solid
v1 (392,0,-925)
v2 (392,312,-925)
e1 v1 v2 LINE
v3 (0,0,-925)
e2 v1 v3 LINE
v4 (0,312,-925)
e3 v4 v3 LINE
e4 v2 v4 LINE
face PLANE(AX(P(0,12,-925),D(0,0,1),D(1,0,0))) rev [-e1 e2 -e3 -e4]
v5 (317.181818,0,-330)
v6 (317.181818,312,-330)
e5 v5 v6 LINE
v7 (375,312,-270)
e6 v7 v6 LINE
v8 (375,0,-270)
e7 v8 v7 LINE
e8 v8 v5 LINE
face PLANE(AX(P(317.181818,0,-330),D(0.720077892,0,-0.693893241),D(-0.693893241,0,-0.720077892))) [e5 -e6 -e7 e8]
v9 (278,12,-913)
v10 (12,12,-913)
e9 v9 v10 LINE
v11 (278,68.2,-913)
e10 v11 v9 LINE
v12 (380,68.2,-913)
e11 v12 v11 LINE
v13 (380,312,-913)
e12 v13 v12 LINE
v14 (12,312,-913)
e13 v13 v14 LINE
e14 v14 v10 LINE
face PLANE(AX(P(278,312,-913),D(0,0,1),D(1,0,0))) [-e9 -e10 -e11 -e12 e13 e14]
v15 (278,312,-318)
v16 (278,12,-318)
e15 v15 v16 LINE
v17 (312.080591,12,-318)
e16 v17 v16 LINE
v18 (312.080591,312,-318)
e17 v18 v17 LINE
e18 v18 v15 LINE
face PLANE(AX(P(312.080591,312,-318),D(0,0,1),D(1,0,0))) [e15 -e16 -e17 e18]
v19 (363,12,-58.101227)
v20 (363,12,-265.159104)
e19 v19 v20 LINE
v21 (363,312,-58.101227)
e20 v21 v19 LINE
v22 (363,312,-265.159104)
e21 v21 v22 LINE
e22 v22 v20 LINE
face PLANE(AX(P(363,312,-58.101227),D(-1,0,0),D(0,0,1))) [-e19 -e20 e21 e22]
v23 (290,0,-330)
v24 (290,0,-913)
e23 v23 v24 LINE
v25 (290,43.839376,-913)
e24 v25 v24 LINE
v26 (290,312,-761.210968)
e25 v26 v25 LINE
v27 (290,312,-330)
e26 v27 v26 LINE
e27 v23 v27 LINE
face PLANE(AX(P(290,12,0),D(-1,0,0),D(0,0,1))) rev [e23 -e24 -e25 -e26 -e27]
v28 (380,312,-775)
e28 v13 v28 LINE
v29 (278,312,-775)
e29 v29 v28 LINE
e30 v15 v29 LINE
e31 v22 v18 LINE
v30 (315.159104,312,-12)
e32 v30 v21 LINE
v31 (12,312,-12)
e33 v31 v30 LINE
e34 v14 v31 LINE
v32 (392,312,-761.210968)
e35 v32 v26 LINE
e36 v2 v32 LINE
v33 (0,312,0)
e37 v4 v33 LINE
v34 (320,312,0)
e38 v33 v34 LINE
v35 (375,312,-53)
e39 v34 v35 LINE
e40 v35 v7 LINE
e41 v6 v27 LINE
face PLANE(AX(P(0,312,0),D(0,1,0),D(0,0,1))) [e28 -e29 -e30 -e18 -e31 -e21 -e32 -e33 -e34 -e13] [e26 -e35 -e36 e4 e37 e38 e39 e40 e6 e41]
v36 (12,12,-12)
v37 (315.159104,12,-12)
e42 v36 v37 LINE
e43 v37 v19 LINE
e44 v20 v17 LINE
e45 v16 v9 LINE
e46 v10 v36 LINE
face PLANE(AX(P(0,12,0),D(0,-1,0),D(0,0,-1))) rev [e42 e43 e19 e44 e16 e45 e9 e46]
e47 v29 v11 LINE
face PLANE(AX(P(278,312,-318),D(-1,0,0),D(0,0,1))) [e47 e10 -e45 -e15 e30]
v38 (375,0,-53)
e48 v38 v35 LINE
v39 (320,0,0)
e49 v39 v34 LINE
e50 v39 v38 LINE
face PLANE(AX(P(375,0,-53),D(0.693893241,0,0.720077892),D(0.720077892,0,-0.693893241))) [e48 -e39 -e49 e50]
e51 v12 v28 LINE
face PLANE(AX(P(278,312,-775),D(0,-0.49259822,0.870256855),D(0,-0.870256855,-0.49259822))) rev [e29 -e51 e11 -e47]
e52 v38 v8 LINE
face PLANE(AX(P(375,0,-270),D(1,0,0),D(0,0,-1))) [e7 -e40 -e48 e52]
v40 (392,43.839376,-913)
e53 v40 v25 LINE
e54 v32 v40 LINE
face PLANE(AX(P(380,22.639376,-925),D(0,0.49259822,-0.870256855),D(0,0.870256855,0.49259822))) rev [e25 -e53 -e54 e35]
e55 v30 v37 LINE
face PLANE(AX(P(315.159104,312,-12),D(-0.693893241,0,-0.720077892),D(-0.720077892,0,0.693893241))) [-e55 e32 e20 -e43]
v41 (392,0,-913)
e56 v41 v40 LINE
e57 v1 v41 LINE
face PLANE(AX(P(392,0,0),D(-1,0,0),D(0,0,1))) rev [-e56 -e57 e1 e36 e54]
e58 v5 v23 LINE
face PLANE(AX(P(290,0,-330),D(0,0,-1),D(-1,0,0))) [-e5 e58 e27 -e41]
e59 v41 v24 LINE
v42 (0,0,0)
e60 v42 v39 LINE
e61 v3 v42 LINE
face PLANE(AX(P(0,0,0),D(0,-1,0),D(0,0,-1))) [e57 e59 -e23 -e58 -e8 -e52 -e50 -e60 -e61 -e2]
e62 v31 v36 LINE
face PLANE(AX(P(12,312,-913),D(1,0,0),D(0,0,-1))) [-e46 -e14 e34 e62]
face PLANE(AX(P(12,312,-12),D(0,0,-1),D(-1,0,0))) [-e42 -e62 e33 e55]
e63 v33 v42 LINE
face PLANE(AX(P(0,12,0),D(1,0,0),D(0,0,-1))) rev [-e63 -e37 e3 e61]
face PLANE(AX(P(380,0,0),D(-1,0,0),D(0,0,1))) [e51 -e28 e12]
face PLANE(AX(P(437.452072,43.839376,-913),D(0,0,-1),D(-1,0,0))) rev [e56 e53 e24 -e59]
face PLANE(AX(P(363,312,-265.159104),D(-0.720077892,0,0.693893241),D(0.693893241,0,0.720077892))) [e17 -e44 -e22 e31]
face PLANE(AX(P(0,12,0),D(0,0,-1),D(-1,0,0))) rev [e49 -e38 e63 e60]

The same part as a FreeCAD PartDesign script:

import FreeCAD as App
import Part
import Sketcher


def add_polygon(sketch, points):
    """Adds a closed chain of lines whose ends are joined by coincident constraints."""
    first, n = sketch.GeometryCount, len(points)
    for a, b in zip(points, points[1:] + points[:1]):
        sketch.addGeometry(Part.LineSegment(App.Vector(*a, 0), App.Vector(*b, 0)), False)
    for i in range(n):
        sketch.addConstraint(Sketcher.Constraint("Coincident", first + i, 2, first + (i + 1) % n, 1))

doc = App.newDocument("Part")
body = doc.addObject("PartDesign::Body", "Body")

sketch1 = doc.addObject("Sketcher::SketchObject", "Sketch")
body.addObject(sketch1)
sketch1.AttachmentSupport = (doc.XZ_Plane, [""])
sketch1.MapMode = "FlatFace"
add_polygon(sketch1, [(0, -925), (0, 0), (290, 0), (290, -925)])
sketch1.addConstraint([
    Sketcher.Constraint("Vertical", 0),
    Sketcher.Constraint("Horizontal", 1),
    Sketcher.Constraint("Vertical", 2),
    Sketcher.Constraint("Horizontal", 3),
    Sketcher.Constraint("Coincident", 0, 2, -1, 1),
    Sketcher.Constraint("DistanceX", 1, 1, 1, 2, 290.0),
    Sketcher.Constraint("DistanceY", 0, 1, 0, 2, 925.0),
])
pad1 = doc.addObject("PartDesign::Pad", "Pad")
body.addObject(pad1)
pad1.Profile = sketch1
pad1.Length = 12
pad1.Reversed = True

sketch2 = doc.addObject("Sketcher::SketchObject", "Sketch001")
body.addObject(sketch2)
sketch2.AttachmentSupport = (doc.XZ_Plane, [""])
sketch2.MapMode = "FlatFace"
sketch2.AttachmentOffset = App.Placement(App.Vector(0, 0, -12), App.Rotation())
add_polygon(sketch2, [(317.181818, -330), (290, -330), (290, 0), (320, 0), (375, -53), (375, -270)])
sketch2.addConstraint([
    Sketcher.Constraint("Horizontal", 0),
    Sketcher.Constraint("Vertical", 1),
    Sketcher.Constraint("Horizontal", 2),
    Sketcher.Constraint("Vertical", 4),
    Sketcher.Constraint("PointOnObject", 1, 2, -1),
    Sketcher.Constraint("Perpendicular", 3, 5),
    Sketcher.Constraint("DistanceX", 2, 1, 2, 2, 30.0),
    Sketcher.Constraint("DistanceY", 1, 1, 1, 2, 330.0),
    Sketcher.Constraint("DistanceY", 4, 2, 4, 1, 217.0),
    Sketcher.Constraint("DistanceX", -1, 1, 0, 2, 290.0),
    Sketcher.Constraint("DistanceX", -1, 1, 3, 2, 375.0),
    Sketcher.Constraint("DistanceY", 3, 2, -1, 1, 53.0),
])
pad2 = doc.addObject("PartDesign::Pad", "Pad001")
body.addObject(pad2)
pad2.Profile = sketch2
pad2.Length = 12

sketch3 = doc.addObject("Sketcher::SketchObject", "Sketch002")
body.addObject(sketch3)
sketch3.AttachmentSupport = (doc.XZ_Plane, [""])
sketch3.MapMode = "FlatFace"
sketch3.AttachmentOffset = App.Placement(App.Vector(0, 0, -12), App.Rotation())
add_polygon(sketch3, [(0, -925), (0, 0), (320, 0), (375, -53), (375, -270), (317.181818, -330), (290, -330), (290, -925)])
add_polygon(sketch3, [(12, -12), (12, -913), (278, -913), (278, -318), (312.080591, -318), (363, -265.159104), (363, -58.101227), (315.159104, -12)])
sketch3.addConstraint([
    Sketcher.Constraint("Vertical", 0),
    Sketcher.Constraint("Horizontal", 1),
    Sketcher.Constraint("Vertical", 3),
    Sketcher.Constraint("Horizontal", 5),
    Sketcher.Constraint("Vertical", 6),
    Sketcher.Constraint("Horizontal", 7),
    Sketcher.Constraint("Vertical", 8),
    Sketcher.Constraint("Horizontal", 9),
    Sketcher.Constraint("Vertical", 10),
    Sketcher.Constraint("Horizontal", 11),
    Sketcher.Constraint("Vertical", 13),
    Sketcher.Constraint("Horizontal", 15),
    Sketcher.Constraint("Coincident", 0, 2, -1, 1),
    Sketcher.Constraint("Perpendicular", 2, 4),
    Sketcher.Constraint("Parallel", 4, 12),
    Sketcher.Constraint("Perpendicular", 12, 14),
    Sketcher.Constraint("Equal", 6, 10),
    Sketcher.Constraint("DistanceX", 1, 1, 1, 2, 320.0),
    Sketcher.Constraint("DistanceX", 7, 2, 7, 1, 290.0),
    Sketcher.Constraint("DistanceX", 9, 1, 9, 2, 266.0),
    Sketcher.Constraint("DistanceY", 0, 1, 0, 2, 925.0),
    Sketcher.Constraint("DistanceY", 3, 2, 3, 1, 217.0),
    Sketcher.Constraint("DistanceY", 6, 2, 6, 1, 595.0),
    Sketcher.Constraint("DistanceY", 8, 2, 8, 1, 901.0),
    Sketcher.Constraint("DistanceX", -1, 1, 2, 2, 375.0),
    Sketcher.Constraint("DistanceY", 2, 2, -1, 1, 53.0),
    Sketcher.Constraint("DistanceX", -1, 1, 8, 2, 12.0),
    Sketcher.Constraint("DistanceY", 8, 2, -1, 1, 913.0),
    Sketcher.Constraint("DistanceX", -1, 1, 12, 2, 363.0),
    Sketcher.Constraint("Distance", 14, 66.438502),
    Sketcher.Constraint("DistanceX", 11, 1, 11, 2, 34.080591),
])
pad3 = doc.addObject("PartDesign::Pad", "Pad002")
body.addObject(pad3)
pad3.Profile = sketch3
pad3.Length = 300
pad3.Reversed = True

sketch4 = doc.addObject("Sketcher::SketchObject", "Sketch003")
body.addObject(sketch4)
sketch4.AttachmentSupport = (doc.YZ_Plane, [""])
sketch4.MapMode = "FlatFace"
sketch4.AttachmentOffset = App.Placement(App.Vector(0, 0, 290), App.Rotation())
add_polygon(sketch4, [(312, -775), (47, -925), (312, -925)])
sketch4.addConstraint([
    Sketcher.Constraint("Horizontal", 1),
    Sketcher.Constraint("Vertical", 2),
    Sketcher.Constraint("DistanceX", 1, 1, 1, 2, 265.0),
    Sketcher.Constraint("DistanceY", 2, 1, 2, 2, 150.0),
    Sketcher.Constraint("DistanceX", -1, 1, 0, 2, 47.0),
    Sketcher.Constraint("DistanceY", 0, 2, -1, 1, 925.0),
])
pocket1 = doc.addObject("PartDesign::Pocket", "Pocket")
body.addObject(pocket1)
pocket1.Profile = sketch4
pocket1.Length = 12

sketch5 = doc.addObject("Sketcher::SketchObject", "Sketch004")
body.addObject(sketch5)
sketch5.AttachmentSupport = (doc.YZ_Plane, [""])
sketch5.MapMode = "FlatFace"
sketch5.AttachmentOffset = App.Placement(App.Vector(0, 0, 290), App.Rotation())
add_polygon(sketch5, [(47, -925), (312, -775), (312, -761.210968), (22.639376, -925)])
sketch5.addConstraint([
    Sketcher.Constraint("Vertical", 1),
    Sketcher.Constraint("Horizontal", 3),
    Sketcher.Constraint("Parallel", 0, 2),
    Sketcher.Constraint("DistanceX", -1, 1, 0, 2, 312.0),
    Sketcher.Constraint("DistanceY", 0, 2, -1, 1, 775.0),
    Sketcher.Constraint("DistanceY", 2, 2, -1, 1, 925.0),
    Sketcher.Constraint("DistanceX", -1, 1, 3, 2, 47.0),
    Sketcher.Constraint("DistanceX", 3, 1, 3, 2, 24.360624),
])
pad4 = doc.addObject("PartDesign::Pad", "Pad003")
body.addObject(pad4)
pad4.Profile = sketch5
pad4.Length = 90

sketch6 = doc.addObject("Sketcher::SketchObject", "Sketch005")
body.addObject(sketch6)
sketch6.AttachmentSupport = (doc.YZ_Plane, [""])
sketch6.MapMode = "FlatFace"
sketch6.AttachmentOffset = App.Placement(App.Vector(0, 0, 278), App.Rotation())
add_polygon(sketch6, [(47, -925), (312, -925), (312, -913), (68.2, -913)])
sketch6.addConstraint([
    Sketcher.Constraint("Horizontal", 0),
    Sketcher.Constraint("Vertical", 1),
    Sketcher.Constraint("Horizontal", 2),
    Sketcher.Constraint("DistanceX", 0, 1, 0, 2, 265.0),
    Sketcher.Constraint("DistanceY", 1, 1, 1, 2, 12.0),
    Sketcher.Constraint("DistanceX", 2, 2, 2, 1, 243.8),
    Sketcher.Constraint("DistanceX", -1, 1, 0, 2, 312.0),
    Sketcher.Constraint("DistanceY", 0, 2, -1, 1, 925.0),
])
pad5 = doc.addObject("PartDesign::Pad", "Pad004")
body.addObject(pad5)
pad5.Profile = sketch6
pad5.Length = 102

sketch7 = doc.addObject("Sketcher::SketchObject", "Sketch006")
body.addObject(sketch7)
sketch7.AttachmentSupport = (doc.YZ_Plane, [""])
sketch7.MapMode = "FlatFace"
sketch7.AttachmentOffset = App.Placement(App.Vector(0, 0, 380), App.Rotation())
add_polygon(sketch7, [(312, -925), (312, -761.210968), (22.639376, -925)])
sketch7.addConstraint([
    Sketcher.Constraint("Vertical", 0),
    Sketcher.Constraint("Horizontal", 2),
    Sketcher.Constraint("DistanceX", -1, 1, 0, 2, 312.0),
    Sketcher.Constraint("DistanceY", 1, 2, -1, 1, 925.0),
    Sketcher.Constraint("DistanceX", 2, 1, 2, 2, 289.360624),
    Sketcher.Constraint("DistanceY", 0, 1, 0, 2, 163.789032),
])
pad6 = doc.addObject("PartDesign::Pad", "Pad005")
body.addObject(pad6)
pad6.Profile = sketch7
pad6.Length = 12

sketch8 = doc.addObject("Sketcher::SketchObject", "Sketch007")
body.addObject(sketch8)
sketch8.AttachmentSupport = (doc.YZ_Plane, [""])
sketch8.MapMode = "FlatFace"
sketch8.AttachmentOffset = App.Placement(App.Vector(0, 0, 290), App.Rotation())
add_polygon(sketch8, [(0, -925), (22.639376, -925), (43.839376, -913), (0, -913)])
sketch8.addConstraint([
    Sketcher.Constraint("Horizontal", 0),
    Sketcher.Constraint("Horizontal", 2),
    Sketcher.Constraint("Vertical", 3),
    Sketcher.Constraint("PointOnObject", 2, 2, -2),
    Sketcher.Constraint("DistanceY", 3, 2, 3, 1, 12.0),
    Sketcher.Constraint("DistanceY", 0, 2, -1, 1, 925.0),
    Sketcher.Constraint("DistanceX", 0, 2, 1, 2, 21.2),
    Sketcher.Constraint("DistanceX", 0, 1, 0, 2, 22.639376),
])
pad7 = doc.addObject("PartDesign::Pad", "Pad006")
body.addObject(pad7)
pad7.Profile = sketch8
pad7.Length = 102

doc.recompute()
